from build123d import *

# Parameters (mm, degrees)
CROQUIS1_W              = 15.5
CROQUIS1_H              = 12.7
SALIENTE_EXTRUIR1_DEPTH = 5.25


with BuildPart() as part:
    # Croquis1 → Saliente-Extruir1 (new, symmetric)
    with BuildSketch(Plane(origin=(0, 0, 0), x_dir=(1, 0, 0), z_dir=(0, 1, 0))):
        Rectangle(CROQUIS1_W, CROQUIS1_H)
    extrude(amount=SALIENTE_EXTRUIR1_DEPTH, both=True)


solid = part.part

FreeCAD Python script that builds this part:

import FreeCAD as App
import Part
import Sketcher
Q = App.Units.Quantity

doc = App.newDocument("Part")
body = doc.addObject("PartDesign::Body", "Body")

sketch1 = doc.addObject("Sketcher::SketchObject", "Sketch")
body.addObject(sketch1)
sketch1.AttachmentSupport = (doc.XZ_Plane, [""])
sketch1.MapMode = "FlatFace"
sketch1.addGeometry([
    Part.LineSegment(App.Vector(-8, -6, 0), App.Vector(-8, 6, 0)),
    Part.LineSegment(App.Vector(-8, 6, 0), App.Vector(8, 6, 0)),
    Part.LineSegment(App.Vector(8, 6, 0), App.Vector(8, -6, 0)),
    Part.LineSegment(App.Vector(8, -6, 0), App.Vector(-8, -6, 0)),
], False)
sketch1.addConstraint([
    Sketcher.Constraint("Coincident", 0, 2, 1, 1),
    Sketcher.Constraint("Coincident", 1, 2, 2, 1),
    Sketcher.Constraint("Coincident", 2, 2, 3, 1),
    Sketcher.Constraint("Coincident", 3, 2, 0, 1),
    Sketcher.Constraint("Vertical", 0),
    Sketcher.Constraint("Horizontal", 1),
    Sketcher.Constraint("Vertical", 2),
    Sketcher.Constraint("Horizontal", 3),
    Sketcher.Constraint("Symmetric", 0, 2, 2, 2, -1, 1),
    Sketcher.Constraint("DistanceX", 1, 1, 1, 2, Q("15.5 mm")),
    Sketcher.Constraint("DistanceY", 0, 1, 0, 2, Q("12.7 mm")),
])
pad1 = doc.addObject("PartDesign::Pad", "Pad")
body.addObject(pad1)
pad1.Profile = sketch1
pad1.Length = 10.5
pad1.Midplane = True

doc.recompute()
